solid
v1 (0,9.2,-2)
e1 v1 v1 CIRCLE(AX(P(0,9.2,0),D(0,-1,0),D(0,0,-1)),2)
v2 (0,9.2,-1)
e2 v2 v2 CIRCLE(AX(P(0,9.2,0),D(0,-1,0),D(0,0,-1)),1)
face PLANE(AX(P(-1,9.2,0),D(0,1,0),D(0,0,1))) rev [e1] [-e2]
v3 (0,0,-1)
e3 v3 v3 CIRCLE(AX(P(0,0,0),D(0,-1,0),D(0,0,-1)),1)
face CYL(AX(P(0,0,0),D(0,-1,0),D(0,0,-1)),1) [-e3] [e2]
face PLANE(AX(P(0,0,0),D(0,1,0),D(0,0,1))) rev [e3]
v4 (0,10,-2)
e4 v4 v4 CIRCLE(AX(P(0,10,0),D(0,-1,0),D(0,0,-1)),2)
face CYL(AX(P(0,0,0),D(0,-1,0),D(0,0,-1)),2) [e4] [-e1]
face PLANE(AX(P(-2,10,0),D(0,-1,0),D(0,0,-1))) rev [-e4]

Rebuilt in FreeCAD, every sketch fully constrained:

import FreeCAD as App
import Part
import Sketcher
Q = App.Units.Quantity


def add_polygon(sketch, points):
    """Adds a closed chain of lines whose ends are joined by coincident constraints."""
    first, n = sketch.GeometryCount, len(points)
    for a, b in zip(points, points[1:] + points[:1]):
        sketch.addGeometry(Part.LineSegment(App.Vector(*a, 0), App.Vector(*b, 0)), False)
    for i in range(n):
        sketch.addConstraint(Sketcher.Constraint("Coincident", first + i, 2, first + (i + 1) % n, 1))

doc = App.newDocument("Part")
body = doc.addObject("PartDesign::Body", "Body")

sketch1 = body.newObject("Sketcher::SketchObject", "Sketch")
sketch1.AttachmentSupport = (doc.getObject("XY_Plane"), [""])
sketch1.MapMode = "FlatFace"
add_polygon(sketch1, [(-1, 0), (0, 0), (0, 10), (-2, 10), (-2, 9.2), (-1, 9.2)])
sketch1.addConstraint(Sketcher.Constraint("Horizontal", 0))
sketch1.addConstraint(Sketcher.Constraint("Vertical", 1))
sketch1.addConstraint(Sketcher.Constraint("Horizontal", 2))
sketch1.addConstraint(Sketcher.Constraint("Vertical", 3))
sketch1.addConstraint(Sketcher.Constraint("Horizontal", 4))
sketch1.addConstraint(Sketcher.Constraint("Vertical", 5))
sketch1.addConstraint(Sketcher.Constraint("Coincident", 0, 2, -1, 1))
sketch1.addConstraint(Sketcher.Constraint("Equal", 0, 4))
sketch1.addConstraint(Sketcher.Constraint("DistanceX", 0, 1, 0, 2, Q("1 mm")))
sketch1.addConstraint(Sketcher.Constraint("DistanceY", 1, 1, 1, 2, Q("10 mm")))
sketch1.addConstraint(Sketcher.Constraint("DistanceY", 3, 2, 3, 1, Q("0.8 mm")))
revolution = body.newObject("PartDesign::Revolution", "Revolution")
revolution.Profile = sketch1
revolution.ReferenceAxis = (sketch1, ["V_Axis"])
revolution.Angle = 360

doc.recompute()
